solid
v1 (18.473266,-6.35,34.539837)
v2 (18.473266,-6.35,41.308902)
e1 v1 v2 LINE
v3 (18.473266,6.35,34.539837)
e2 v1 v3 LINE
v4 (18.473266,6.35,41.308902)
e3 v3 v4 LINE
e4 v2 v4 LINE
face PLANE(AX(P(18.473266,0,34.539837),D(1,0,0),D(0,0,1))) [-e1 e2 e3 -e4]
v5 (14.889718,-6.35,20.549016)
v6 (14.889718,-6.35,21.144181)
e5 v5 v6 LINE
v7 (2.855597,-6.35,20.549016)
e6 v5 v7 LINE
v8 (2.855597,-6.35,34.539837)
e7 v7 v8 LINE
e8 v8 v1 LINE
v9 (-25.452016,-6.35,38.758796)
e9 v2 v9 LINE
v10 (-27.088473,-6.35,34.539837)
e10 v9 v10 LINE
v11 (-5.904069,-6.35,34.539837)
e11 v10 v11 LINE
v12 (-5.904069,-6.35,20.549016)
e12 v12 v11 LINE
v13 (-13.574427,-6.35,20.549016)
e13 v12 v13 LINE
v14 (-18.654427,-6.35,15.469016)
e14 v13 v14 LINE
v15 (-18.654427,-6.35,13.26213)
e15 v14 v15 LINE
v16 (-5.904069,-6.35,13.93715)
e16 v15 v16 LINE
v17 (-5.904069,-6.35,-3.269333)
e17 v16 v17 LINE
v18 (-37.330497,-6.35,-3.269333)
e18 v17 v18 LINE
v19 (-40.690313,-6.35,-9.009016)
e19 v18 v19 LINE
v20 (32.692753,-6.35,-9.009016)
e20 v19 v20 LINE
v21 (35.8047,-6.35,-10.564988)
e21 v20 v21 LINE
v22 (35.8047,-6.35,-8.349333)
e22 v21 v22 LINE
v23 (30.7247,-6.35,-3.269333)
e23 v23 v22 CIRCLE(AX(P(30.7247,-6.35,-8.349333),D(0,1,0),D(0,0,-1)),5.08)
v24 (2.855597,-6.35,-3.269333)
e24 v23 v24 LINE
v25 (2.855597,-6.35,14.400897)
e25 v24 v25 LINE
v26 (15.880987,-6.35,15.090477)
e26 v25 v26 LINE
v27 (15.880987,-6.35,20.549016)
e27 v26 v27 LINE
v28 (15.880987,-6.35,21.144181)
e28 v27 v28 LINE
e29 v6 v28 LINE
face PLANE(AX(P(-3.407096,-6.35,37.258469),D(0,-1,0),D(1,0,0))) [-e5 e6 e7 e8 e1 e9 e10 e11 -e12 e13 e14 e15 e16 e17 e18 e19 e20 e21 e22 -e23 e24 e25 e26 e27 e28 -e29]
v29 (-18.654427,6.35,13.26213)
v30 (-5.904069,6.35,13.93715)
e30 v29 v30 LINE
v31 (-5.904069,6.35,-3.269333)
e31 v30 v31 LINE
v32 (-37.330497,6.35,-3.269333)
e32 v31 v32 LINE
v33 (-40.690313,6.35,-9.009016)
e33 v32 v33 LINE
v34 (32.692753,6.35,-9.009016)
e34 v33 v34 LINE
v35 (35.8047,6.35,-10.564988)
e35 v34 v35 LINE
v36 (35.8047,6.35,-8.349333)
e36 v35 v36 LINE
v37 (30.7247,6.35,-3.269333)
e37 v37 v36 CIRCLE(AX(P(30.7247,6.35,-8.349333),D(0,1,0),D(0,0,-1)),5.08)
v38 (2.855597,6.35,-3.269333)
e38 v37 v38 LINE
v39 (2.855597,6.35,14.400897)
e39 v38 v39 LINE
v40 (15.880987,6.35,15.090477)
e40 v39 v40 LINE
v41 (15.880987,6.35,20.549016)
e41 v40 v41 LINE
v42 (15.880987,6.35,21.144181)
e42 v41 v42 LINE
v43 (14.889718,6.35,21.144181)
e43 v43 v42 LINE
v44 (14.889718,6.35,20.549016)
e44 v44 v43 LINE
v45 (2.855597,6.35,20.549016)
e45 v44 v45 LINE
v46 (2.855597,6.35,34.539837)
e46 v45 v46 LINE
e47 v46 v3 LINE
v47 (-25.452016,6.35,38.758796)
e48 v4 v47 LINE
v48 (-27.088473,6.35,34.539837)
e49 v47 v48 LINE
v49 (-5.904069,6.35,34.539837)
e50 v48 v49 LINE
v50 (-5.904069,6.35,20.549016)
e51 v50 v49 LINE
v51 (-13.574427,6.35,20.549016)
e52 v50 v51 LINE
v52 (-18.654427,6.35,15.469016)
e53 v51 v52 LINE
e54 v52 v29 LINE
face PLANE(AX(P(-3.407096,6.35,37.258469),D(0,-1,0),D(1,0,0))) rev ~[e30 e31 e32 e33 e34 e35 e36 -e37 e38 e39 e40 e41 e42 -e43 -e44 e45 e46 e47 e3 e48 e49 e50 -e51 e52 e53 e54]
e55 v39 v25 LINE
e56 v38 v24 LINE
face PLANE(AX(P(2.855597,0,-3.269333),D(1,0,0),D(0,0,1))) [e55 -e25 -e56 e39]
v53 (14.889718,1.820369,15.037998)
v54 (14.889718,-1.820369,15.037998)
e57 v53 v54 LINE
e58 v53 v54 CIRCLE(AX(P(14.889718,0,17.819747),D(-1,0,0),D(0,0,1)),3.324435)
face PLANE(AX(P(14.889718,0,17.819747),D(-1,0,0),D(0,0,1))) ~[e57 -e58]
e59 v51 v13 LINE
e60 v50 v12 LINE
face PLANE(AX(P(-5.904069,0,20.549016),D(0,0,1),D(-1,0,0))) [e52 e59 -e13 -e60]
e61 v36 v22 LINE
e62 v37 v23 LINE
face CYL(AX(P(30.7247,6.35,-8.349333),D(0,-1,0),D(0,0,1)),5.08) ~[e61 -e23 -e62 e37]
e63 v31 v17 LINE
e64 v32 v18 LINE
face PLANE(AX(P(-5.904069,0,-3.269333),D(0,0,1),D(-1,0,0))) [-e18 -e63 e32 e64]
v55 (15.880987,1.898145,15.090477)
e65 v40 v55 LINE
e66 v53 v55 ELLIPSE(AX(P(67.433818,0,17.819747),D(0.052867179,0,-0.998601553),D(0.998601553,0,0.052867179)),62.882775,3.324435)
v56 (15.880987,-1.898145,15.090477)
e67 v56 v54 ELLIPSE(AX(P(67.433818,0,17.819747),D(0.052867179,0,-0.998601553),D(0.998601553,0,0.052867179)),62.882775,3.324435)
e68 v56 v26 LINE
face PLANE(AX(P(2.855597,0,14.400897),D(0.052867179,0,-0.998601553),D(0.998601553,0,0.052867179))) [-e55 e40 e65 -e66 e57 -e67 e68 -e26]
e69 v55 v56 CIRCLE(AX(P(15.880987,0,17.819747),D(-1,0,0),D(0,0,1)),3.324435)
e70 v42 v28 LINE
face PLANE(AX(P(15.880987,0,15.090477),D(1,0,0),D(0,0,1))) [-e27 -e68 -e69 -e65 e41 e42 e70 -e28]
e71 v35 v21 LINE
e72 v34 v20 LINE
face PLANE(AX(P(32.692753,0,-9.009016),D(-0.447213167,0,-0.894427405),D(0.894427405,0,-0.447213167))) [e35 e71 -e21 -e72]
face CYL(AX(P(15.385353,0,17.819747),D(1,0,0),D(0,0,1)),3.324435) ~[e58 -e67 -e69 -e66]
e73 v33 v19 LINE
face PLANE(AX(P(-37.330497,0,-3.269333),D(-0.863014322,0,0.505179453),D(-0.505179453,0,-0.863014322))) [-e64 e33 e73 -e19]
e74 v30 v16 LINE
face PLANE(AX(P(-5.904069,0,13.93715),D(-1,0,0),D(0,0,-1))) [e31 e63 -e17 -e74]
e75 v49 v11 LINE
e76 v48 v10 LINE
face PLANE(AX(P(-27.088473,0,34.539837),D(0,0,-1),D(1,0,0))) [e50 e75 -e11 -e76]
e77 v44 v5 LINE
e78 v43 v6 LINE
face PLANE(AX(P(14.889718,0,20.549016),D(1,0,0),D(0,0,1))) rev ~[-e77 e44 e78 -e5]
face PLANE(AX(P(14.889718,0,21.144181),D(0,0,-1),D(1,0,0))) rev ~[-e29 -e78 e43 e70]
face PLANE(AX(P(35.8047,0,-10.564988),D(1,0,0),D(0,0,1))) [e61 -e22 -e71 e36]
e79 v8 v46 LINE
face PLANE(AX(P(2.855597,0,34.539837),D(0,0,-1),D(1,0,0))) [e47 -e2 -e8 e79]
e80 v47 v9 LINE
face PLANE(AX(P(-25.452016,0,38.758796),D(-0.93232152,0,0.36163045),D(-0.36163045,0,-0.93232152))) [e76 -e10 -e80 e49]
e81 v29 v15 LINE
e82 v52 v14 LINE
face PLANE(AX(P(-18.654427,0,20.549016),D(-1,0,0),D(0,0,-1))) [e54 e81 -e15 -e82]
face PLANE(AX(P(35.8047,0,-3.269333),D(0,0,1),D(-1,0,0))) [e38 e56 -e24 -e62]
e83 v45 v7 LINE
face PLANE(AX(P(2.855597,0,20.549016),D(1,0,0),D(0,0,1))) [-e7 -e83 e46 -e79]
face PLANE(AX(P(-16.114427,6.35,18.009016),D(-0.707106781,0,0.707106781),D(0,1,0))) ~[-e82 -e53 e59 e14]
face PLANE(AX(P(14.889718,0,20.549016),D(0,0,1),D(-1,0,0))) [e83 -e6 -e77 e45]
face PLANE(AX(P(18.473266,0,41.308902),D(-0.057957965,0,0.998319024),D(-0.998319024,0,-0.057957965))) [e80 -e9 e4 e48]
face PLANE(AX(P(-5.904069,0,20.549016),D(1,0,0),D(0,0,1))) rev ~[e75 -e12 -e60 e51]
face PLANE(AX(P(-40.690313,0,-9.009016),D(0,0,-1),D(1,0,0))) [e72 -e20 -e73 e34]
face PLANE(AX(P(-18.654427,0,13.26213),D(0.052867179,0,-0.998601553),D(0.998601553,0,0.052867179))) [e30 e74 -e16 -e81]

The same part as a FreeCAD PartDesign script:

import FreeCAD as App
import Part
import Sketcher
from FreeCAD import Vector
Q = App.Units.Quantity


def edges_at(feature, points):
    """Names of the edges that pass closest to the given points."""
    edges = feature.Shape.Edges
    near = lambda p: min(range(len(edges)), key=lambda i: edges[i].distToShape(Part.Vertex(*p))[0])
    return sorted({f"Edge{near(p) + 1}" for p in points})

doc = App.newDocument("Part")
body = doc.addObject("PartDesign::Body", "Body")

# Sketch on XZ plane
sketch1 = doc.addObject("Sketcher::SketchObject", "Sketch")
body.addObject(sketch1)
sketch1.AttachmentSupport = (doc.XZ_Plane, [""])
sketch1.MapMode = "FlatFace"
sketch1.addGeometry(Part.LineSegment(Vector(18.473266, 41.308902, 0), Vector(-25.452016, 38.758796, 0)), False)
sketch1.addGeometry(Part.LineSegment(Vector(-25.452016, 38.758796, 0), Vector(-27.088473, 34.539837, 0)), False)
sketch1.addGeometry(Part.LineSegment(Vector(-27.088473, 34.539837, 0), Vector(-5.904069, 34.539837, 0)), False)
sketch1.addGeometry(Part.LineSegment(Vector(-5.904069, 34.539837, 0), Vector(-5.904069, 20.549016, 0)), False)
sketch1.addGeometry(Part.LineSegment(Vector(-5.904069, 20.549016, 0), Vector(-18.654427, 20.549016, 0)), False)
sketch1.addGeometry(Part.LineSegment(Vector(-18.654427, 20.549016, 0), Vector(-18.654427, 13.26213, 0)), False)
sketch1.addGeometry(Part.LineSegment(Vector(-18.654427, 13.26213, 0), Vector(-5.904069, 13.93715, 0)), False)
sketch1.addGeometry(Part.LineSegment(Vector(-5.904069, 13.93715, 0), Vector(-5.904069, -3.269333, 0)), False)
sketch1.addGeometry(Part.LineSegment(Vector(-5.904069, -3.269333, 0), Vector(-37.330497, -3.269333, 0)), False)
sketch1.addGeometry(Part.LineSegment(Vector(-37.330497, -3.269333, 0), Vector(-40.690314, -9.009016, 0)), False)
sketch1.addGeometry(Part.LineSegment(Vector(-40.690314, -9.009016, 0), Vector(32.692753, -9.009016, 0)), False)
sketch1.addGeometry(Part.LineSegment(Vector(32.692753, -9.009016, 0), Vector(35.8047, -10.564988, 0)), False)
sketch1.addGeometry(Part.LineSegment(Vector(35.8047, -10.564988, 0), Vector(35.8047, -3.269333, 0)), False)
sketch1.addGeometry(Part.LineSegment(Vector(35.8047, -3.269333, 0), Vector(2.855597, -3.269333, 0)), False)
sketch1.addGeometry(Part.LineSegment(Vector(2.855597, -3.269333, 0), Vector(2.855597, 14.400897, 0)), False)
sketch1.addGeometry(Part.LineSegment(Vector(2.855597, 14.400897, 0), Vector(15.880987, 15.090477, 0)), False)
sketch1.addGeometry(Part.LineSegment(Vector(15.880987, 15.090477, 0), Vector(15.880987, 20.549016, 0)), False)
sketch1.addGeometry(Part.LineSegment(Vector(15.880987, 20.549016, 0), Vector(15.880987, 21.144181, 0)), False)
sketch1.addGeometry(Part.LineSegment(Vector(15.880987, 21.144181, 0), Vector(14.889718, 21.144181, 0)), False)
sketch1.addGeometry(Part.LineSegment(Vector(14.889718, 21.144181, 0), Vector(14.889718, 20.549016, 0)), False)
sketch1.addGeometry(Part.LineSegment(Vector(14.889718, 20.549016, 0), Vector(2.855597, 20.549016, 0)), False)
sketch1.addGeometry(Part.LineSegment(Vector(2.855597, 20.549016, 0), Vector(2.855597, 34.539837, 0)), False)
sketch1.addGeometry(Part.LineSegment(Vector(2.855597, 34.539837, 0), Vector(18.473266, 34.539837, 0)), False)
sketch1.addGeometry(Part.LineSegment(Vector(18.473266, 34.539837, 0), Vector(18.473266, 41.308902, 0)), False)
sketch1.addConstraint(Sketcher.Constraint("Coincident", 0, 2, 1, 1))
sketch1.addConstraint(Sketcher.Constraint("Coincident", 1, 2, 2, 1))
sketch1.addConstraint(Sketcher.Constraint("Coincident", 2, 2, 3, 1))
sketch1.addConstraint(Sketcher.Constraint("Coincident", 3, 2, 4, 1))
sketch1.addConstraint(Sketcher.Constraint("Coincident", 4, 2, 5, 1))
sketch1.addConstraint(Sketcher.Constraint("Coincident", 5, 2, 6, 1))
sketch1.addConstraint(Sketcher.Constraint("Coincident", 6, 2, 7, 1))
sketch1.addConstraint(Sketcher.Constraint("Coincident", 7, 2, 8, 1))
sketch1.addConstraint(Sketcher.Constraint("Coincident", 8, 2, 9, 1))
sketch1.addConstraint(Sketcher.Constraint("Coincident", 9, 2, 10, 1))
sketch1.addConstraint(Sketcher.Constraint("Coincident", 10, 2, 11, 1))
sketch1.addConstraint(Sketcher.Constraint("Coincident", 11, 2, 12, 1))
sketch1.addConstraint(Sketcher.Constraint("Coincident", 12, 2, 13, 1))
sketch1.addConstraint(Sketcher.Constraint("Coincident", 13, 2, 14, 1))
sketch1.addConstraint(Sketcher.Constraint("Coincident", 14, 2, 15, 1))
sketch1.addConstraint(Sketcher.Constraint("Coincident", 15, 2, 16, 1))
sketch1.addConstraint(Sketcher.Constraint("Coincident", 16, 2, 17, 1))
sketch1.addConstraint(Sketcher.Constraint("Coincident", 17, 2, 18, 1))
sketch1.addConstraint(Sketcher.Constraint("Coincident", 18, 2, 19, 1))
sketch1.addConstraint(Sketcher.Constraint("Coincident", 19, 2, 20, 1))
sketch1.addConstraint(Sketcher.Constraint("Coincident", 20, 2, 21, 1))
sketch1.addConstraint(Sketcher.Constraint("Coincident", 21, 2, 22, 1))
sketch1.addConstraint(Sketcher.Constraint("Coincident", 22, 2, 23, 1))
sketch1.addConstraint(Sketcher.Constraint("Coincident", 23, 2, 0, 1))
sketch1.addConstraint(Sketcher.Constraint("Horizontal", 2))
sketch1.addConstraint(Sketcher.Constraint("Vertical", 3))
sketch1.addConstraint(Sketcher.Constraint("Horizontal", 4))
sketch1.addConstraint(Sketcher.Constraint("Vertical", 5))
sketch1.addConstraint(Sketcher.Constraint("Vertical", 7))
sketch1.addConstraint(Sketcher.Constraint("Horizontal", 8))
sketch1.addConstraint(Sketcher.Constraint("Horizontal", 10))
sketch1.addConstraint(Sketcher.Constraint("Vertical", 12))
sketch1.addConstraint(Sketcher.Constraint("Horizontal", 13))
sketch1.addConstraint(Sketcher.Constraint("Vertical", 14))
sketch1.addConstraint(Sketcher.Constraint("Vertical", 16))
sketch1.addConstraint(Sketcher.Constraint("Vertical", 17))
sketch1.addConstraint(Sketcher.Constraint("Horizontal", 18))
sketch1.addConstraint(Sketcher.Constraint("Vertical", 19))
sketch1.addConstraint(Sketcher.Constraint("Horizontal", 20))
sketch1.addConstraint(Sketcher.Constraint("Vertical", 21))
sketch1.addConstraint(Sketcher.Constraint("Horizontal", 22))
sketch1.addConstraint(Sketcher.Constraint("Vertical", 23))
sketch1.addConstraint(Sketcher.Constraint("Parallel", 6, 15))
sketch1.addConstraint(Sketcher.Constraint("Horizontal", 8, 2, 12, 2))
sketch1.addConstraint(Sketcher.Constraint("Horizontal", 4, 2, 16, 2))
sketch1.addConstraint(Sketcher.Constraint("Horizontal", 16, 2, 19, 2))
sketch1.addConstraint(Sketcher.Constraint("Horizontal", 2, 2, 21, 2))
sketch1.addConstraint(Sketcher.Constraint("Vertical", 3, 2, 6, 2))
sketch1.addConstraint(Sketcher.Constraint("Vertical", 14, 2, 20, 2))
sketch1.addConstraint(Sketcher.Constraint("DistanceX", 18, 2, 18, 1, Q("0.991269 mm")))
sketch1.addConstraint(Sketcher.Constraint("DistanceX", 20, 2, 20, 1, Q("12.034121 mm")))
sketch1.addConstraint(Sketcher.Constraint("DistanceX", 22, 1, 22, 2, Q("15.617669 mm")))
sketch1.addConstraint(Sketcher.Constraint("DistanceY", 3, 2, 3, 1, Q("13.990821 mm")))
sketch1.addConstraint(Sketcher.Constraint("DistanceY", 14, 1, 14, 2, Q("17.67023 mm")))
sketch1.addConstraint(Sketcher.Constraint("DistanceY", 16, 1, 16, 2, Q("5.458539 mm")))
sketch1.addConstraint(Sketcher.Constraint("DistanceX", -1, 1, 11, 2, Q("35.8047 mm")))
sketch1.addConstraint(Sketcher.Constraint("Distance", 1, Q("4.525218 mm")))
sketch1.addConstraint(Sketcher.Constraint("Distance", 9, Q("6.650739 mm")))
sketch1.addConstraint(Sketcher.Constraint("Distance", 15, Q("13.043631 mm")))
sketch1.addConstraint(Sketcher.Constraint("DistanceX", 2, 1, 2, 2, Q("21.184403 mm")))
sketch1.addConstraint(Sketcher.Constraint("DistanceX", 4, 2, 4, 1, Q("12.750357 mm")))
sketch1.addConstraint(Sketcher.Constraint("DistanceX", 8, 2, 8, 1, Q("31.426428 mm")))
sketch1.addConstraint(Sketcher.Constraint("DistanceX", 10, 1, 10, 2, Q("73.383066 mm")))
sketch1.addConstraint(Sketcher.Constraint("DistanceX", 13, 2, 13, 1, Q("32.949103 mm")))
sketch1.addConstraint(Sketcher.Constraint("DistanceY", 5, 2, 5, 1, Q("7.286886 mm")))
sketch1.addConstraint(Sketcher.Constraint("DistanceY", 12, 1, 12, 2, Q("7.295654 mm")))
sketch1.addConstraint(Sketcher.Constraint("DistanceY", 17, 1, 17, 2, Q("0.595165 mm")))
sketch1.addConstraint(Sketcher.Constraint("DistanceY", 23, 1, 23, 2, Q("6.769065 mm")))
sketch1.addConstraint(Sketcher.Constraint("DistanceX", 2, 2, -1, 1, Q("5.904069 mm")))
sketch1.addConstraint(Sketcher.Constraint("DistanceY", -1, 1, 5, 2, Q("13.26213 mm")))
sketch1.addConstraint(Sketcher.Constraint("DistanceY", 1, 2, 0, 2, Q("4.218958 mm")))
sketch1.addConstraint(Sketcher.Constraint("DistanceY", 9, 2, 4, 2, Q("29.558032 mm")))
pad1 = doc.addObject("PartDesign::Pad", "Pad")
body.addObject(pad1)
pad1.Profile = sketch1
pad1.Length = Q("0.5 in")
pad1.Midplane = True
doc.recompute()

fillet = doc.addObject("PartDesign::Fillet", "Fillet")
body.addObject(fillet)
fillet.Base = (pad1, edges_at(pad1, [(35.805, 0, -3.269)]))
fillet.Radius = Q("0.2 in")

# Sketch on XZ plane
sketch2 = doc.addObject("Sketcher::SketchObject", "Sketch001")
body.addObject(sketch2)
sketch2.AttachmentSupport = (doc.XZ_Plane, [""])
sketch2.MapMode = "FlatFace"
sketch2.addGeometry(Part.LineSegment(Vector(14.889718, 21.144181, 0), Vector(14.889718, 20.549016, 0)), False)
sketch2.addGeometry(Part.LineSegment(Vector(14.889718, 20.549016, 0), Vector(15.880987, 20.549016, 0)), False)
sketch2.addGeometry(Part.LineSegment(Vector(15.880987, 20.549016, 0), Vector(15.880987, 21.144181, 0)), False)
sketch2.addGeometry(Part.LineSegment(Vector(15.880987, 21.144181, 0), Vector(14.889718, 21.144181, 0)), False)
sketch2.addGeometry(Part.LineSegment(Vector(15.880987, 17.819747, 0), Vector(14.889718, 17.819747, 0)), True)  # axis
sketch2.addConstraint(Sketcher.Constraint("Coincident", 0, 2, 1, 1))
sketch2.addConstraint(Sketcher.Constraint("Coincident", 1, 2, 2, 1))
sketch2.addConstraint(Sketcher.Constraint("Coincident", 2, 2, 3, 1))
sketch2.addConstraint(Sketcher.Constraint("Coincident", 3, 2, 0, 1))
sketch2.addConstraint(Sketcher.Constraint("Vertical", 0))
sketch2.addConstraint(Sketcher.Constraint("Horizontal", 1))
sketch2.addConstraint(Sketcher.Constraint("Vertical", 2))
sketch2.addConstraint(Sketcher.Constraint("Horizontal", 3))
sketch2.addConstraint(Sketcher.Constraint("Horizontal", 4))
sketch2.addConstraint(Sketcher.Constraint("Vertical", 2, 2, 4, 1))
sketch2.addConstraint(Sketcher.Constraint("Vertical", 3, 2, 4, 2))
sketch2.addConstraint(Sketcher.Constraint("DistanceX", 1, 1, 1, 2, Q("0.991269 mm")))
sketch2.addConstraint(Sketcher.Constraint("DistanceY", 0, 2, 0, 1, Q("0.595165 mm")))
sketch2.addConstraint(Sketcher.Constraint("DistanceX", -1, 1, 0, 2, Q("14.889718 mm")))
sketch2.addConstraint(Sketcher.Constraint("DistanceY", -1, 1, 2, 2, Q("21.144181 mm")))
sketch2.addConstraint(Sketcher.Constraint("DistanceY", 4, 1, 1, 2, Q("2.72927 mm")))
revolution = doc.addObject("PartDesign::Revolution", "Revolution")
body.addObject(revolution)
revolution.Profile = sketch2
revolution.ReferenceAxis = (sketch2, ["Axis0"])
revolution.Angle = 360
doc.recompute()

chamfer = doc.addObject("PartDesign::Chamfer", "Chamfer")
body.addObject(chamfer)
chamfer.Base = (revolution, edges_at(revolution, [(-18.654, 0, 20.549)]))
chamfer.Size = Q("0.2 in")

doc.recompute()
